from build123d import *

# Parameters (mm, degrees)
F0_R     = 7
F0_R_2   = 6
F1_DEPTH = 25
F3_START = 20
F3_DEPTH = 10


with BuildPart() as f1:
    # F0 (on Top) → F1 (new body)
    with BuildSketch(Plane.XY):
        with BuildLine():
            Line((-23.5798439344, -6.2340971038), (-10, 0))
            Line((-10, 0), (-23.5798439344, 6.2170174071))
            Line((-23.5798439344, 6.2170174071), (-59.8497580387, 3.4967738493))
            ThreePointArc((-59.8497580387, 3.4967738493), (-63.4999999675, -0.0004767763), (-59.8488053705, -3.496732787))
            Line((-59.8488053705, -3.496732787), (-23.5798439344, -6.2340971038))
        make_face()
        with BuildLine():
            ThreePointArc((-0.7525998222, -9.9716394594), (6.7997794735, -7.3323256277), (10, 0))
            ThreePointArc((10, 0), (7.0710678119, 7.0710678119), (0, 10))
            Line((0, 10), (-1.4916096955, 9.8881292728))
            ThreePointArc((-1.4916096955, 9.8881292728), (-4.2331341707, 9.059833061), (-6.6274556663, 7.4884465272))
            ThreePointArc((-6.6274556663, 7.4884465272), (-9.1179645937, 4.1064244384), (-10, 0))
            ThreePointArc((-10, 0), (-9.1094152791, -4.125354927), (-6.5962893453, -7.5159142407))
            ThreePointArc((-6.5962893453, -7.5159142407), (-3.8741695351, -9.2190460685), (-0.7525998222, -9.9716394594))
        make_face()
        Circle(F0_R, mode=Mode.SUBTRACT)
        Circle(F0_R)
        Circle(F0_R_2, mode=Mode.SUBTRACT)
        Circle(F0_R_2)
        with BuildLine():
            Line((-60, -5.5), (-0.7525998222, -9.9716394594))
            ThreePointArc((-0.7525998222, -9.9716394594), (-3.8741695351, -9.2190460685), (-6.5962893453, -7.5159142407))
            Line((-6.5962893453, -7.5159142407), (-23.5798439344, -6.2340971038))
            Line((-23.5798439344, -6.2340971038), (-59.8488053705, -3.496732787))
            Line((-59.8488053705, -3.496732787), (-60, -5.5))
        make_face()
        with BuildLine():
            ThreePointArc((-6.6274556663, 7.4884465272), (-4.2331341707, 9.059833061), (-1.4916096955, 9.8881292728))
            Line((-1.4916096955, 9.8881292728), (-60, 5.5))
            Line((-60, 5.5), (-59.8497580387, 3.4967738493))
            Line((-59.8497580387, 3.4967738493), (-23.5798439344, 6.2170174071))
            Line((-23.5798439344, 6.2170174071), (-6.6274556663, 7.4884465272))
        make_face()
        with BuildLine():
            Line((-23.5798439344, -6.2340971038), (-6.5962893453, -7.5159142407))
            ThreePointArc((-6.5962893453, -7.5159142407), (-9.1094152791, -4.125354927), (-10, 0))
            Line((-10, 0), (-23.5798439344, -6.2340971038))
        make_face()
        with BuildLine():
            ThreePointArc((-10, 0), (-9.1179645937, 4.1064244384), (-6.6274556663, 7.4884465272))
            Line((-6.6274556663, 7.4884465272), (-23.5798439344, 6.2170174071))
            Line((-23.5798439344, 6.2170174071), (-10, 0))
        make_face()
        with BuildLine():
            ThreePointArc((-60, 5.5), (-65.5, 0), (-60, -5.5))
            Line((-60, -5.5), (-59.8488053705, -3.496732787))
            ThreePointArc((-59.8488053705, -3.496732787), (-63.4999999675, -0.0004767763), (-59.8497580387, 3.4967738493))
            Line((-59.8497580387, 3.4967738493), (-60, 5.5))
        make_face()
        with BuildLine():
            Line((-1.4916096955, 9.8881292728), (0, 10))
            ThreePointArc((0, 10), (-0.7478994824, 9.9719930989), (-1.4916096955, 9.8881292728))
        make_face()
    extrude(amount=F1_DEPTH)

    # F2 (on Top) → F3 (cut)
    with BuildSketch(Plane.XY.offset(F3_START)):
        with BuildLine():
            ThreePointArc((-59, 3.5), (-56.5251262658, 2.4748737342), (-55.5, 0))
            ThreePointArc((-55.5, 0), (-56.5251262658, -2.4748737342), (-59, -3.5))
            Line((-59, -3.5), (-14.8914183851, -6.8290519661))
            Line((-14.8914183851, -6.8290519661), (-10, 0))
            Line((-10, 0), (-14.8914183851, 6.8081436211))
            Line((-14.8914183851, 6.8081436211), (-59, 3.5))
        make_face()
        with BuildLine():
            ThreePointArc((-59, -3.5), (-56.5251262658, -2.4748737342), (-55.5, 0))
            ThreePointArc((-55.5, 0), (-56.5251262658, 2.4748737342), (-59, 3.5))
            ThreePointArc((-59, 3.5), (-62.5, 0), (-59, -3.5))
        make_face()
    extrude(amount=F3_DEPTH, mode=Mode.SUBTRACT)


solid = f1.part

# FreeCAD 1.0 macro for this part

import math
import FreeCAD as App
import Part
import Sketcher
from FreeCAD import Vector
Q = App.Units.Quantity

doc = App.newDocument("Part")
params = doc.addObject("Spreadsheet::Sheet", "Params")
for row, (alias, value) in enumerate([
    ("sketch1_radius", "10 mm"),
    ("sketch1_radius2", "5.5 mm"),
    ("pad1_length", "25 mm"),
    ("sketch2_radius", "3.5 mm"),
    ("pocket1_length", "10 mm"),
], start=1):
    params.set(f"A{row}", alias)
    params.set(f"B{row}", "=" + value)
    params.setAlias(f"B{row}", alias)

body = doc.addObject("PartDesign::Body", "Body")

# Sketch on XY plane
sketch1 = body.newObject("Sketcher::SketchObject", "Sketch")
sketch1.AttachmentSupport = (doc.getObject("XY_Plane"), [""])
sketch1.MapMode = "FlatFace"
sketch1.addGeometry([
    Part.LineSegment(Vector(-1.5, 9.9, 0), Vector(-60, 5.5, 0)),  # 0
    Part.ArcOfCircle(Part.Circle(Vector(-60, 0, 0), Vector(0, 0, 1), 5.5), math.radians(90), math.radians(270)),  # 1
    Part.LineSegment(Vector(-60, -5.5, 0), Vector(-0.8, -10, 0)),  # 2
    Part.ArcOfCircle(Part.Circle(Vector(0, 0, 0), Vector(0, 0, 1), 10), math.radians(-94), math.radians(0)),  # 3
    Part.ArcOfCircle(Part.Circle(Vector(0, 0, 0), Vector(0, 0, 1), 10), math.radians(0), math.radians(90)),  # 4
    Part.ArcOfCircle(Part.Circle(Vector(0, 0, 0), Vector(0, 0, 1), 10), math.radians(90), math.radians(98.58)),  # 5
], False)
sketch1.addConstraint([
    Sketcher.Constraint("Coincident", 0, 2, 1, 1),
    Sketcher.Constraint("Coincident", 1, 2, 2, 1),
    Sketcher.Constraint("Tangent", 2, 2, 3, 1),
    Sketcher.Constraint("Tangent", 3, 2, 4, 1),
    Sketcher.Constraint("Tangent", 4, 2, 5, 1),
    Sketcher.Constraint("Coincident", 5, 2, 0, 1),
    Sketcher.Constraint("Coincident", 3, 3, -1, 1),
    Sketcher.Constraint("Coincident", 5, 3, -1, 1),
    Sketcher.Constraint("Symmetric", 0, 2, 1, 2, -1),
    Sketcher.Constraint("PointOnObject", 3, 2, -1),
    Sketcher.Constraint("PointOnObject", 4, 2, -2),
    Sketcher.Constraint("Vertical", 1, 3, 0, 2),
    Sketcher.Constraint("Radius", 3, Q("10 mm")),
    Sketcher.Constraint("Radius", 1, Q("5.5 mm")),
    Sketcher.Constraint("DistanceX", 1, 3, -1, 1, Q("60 mm")),
    Sketcher.Constraint("DistanceX", 5, 2, -1, 1, Q("1.49161 mm")),
])
sketch1.setExpression("Constraints[12]", "Params.sketch1_radius")
sketch1.setExpression("Constraints[13]", "Params.sketch1_radius2")
pad1 = body.newObject("PartDesign::Pad", "Pad")
pad1.Profile = sketch1
pad1.setExpression("Length", "Params.pad1_length")

# Sketch on XY plane
sketch2 = body.newObject("Sketcher::SketchObject", "Sketch001")
sketch2.AttachmentSupport = (doc.getObject("XY_Plane"), [""])
sketch2.MapMode = "FlatFace"
sketch2.AttachmentOffset = App.Placement(Vector(0, 0, 20), App.Rotation())
sketch2.addGeometry([
    Part.LineSegment(Vector(-59, -3.5, 0), Vector(-14.9, -6.8, 0)),  # 0
    Part.LineSegment(Vector(-14.9, -6.8, 0), Vector(-10, 0, 0)),  # 1
    Part.LineSegment(Vector(-10, 0, 0), Vector(-14.9, 6.8, 0)),  # 2
    Part.LineSegment(Vector(-14.9, 6.8, 0), Vector(-59, 3.5, 0)),  # 3
    Part.ArcOfCircle(Part.Circle(Vector(-59, 0, 0), Vector(0, 0, 1), 3.5), math.radians(90), math.radians(270)),  # 4
], False)
sketch2.addConstraint([
    Sketcher.Constraint("Coincident", 0, 2, 1, 1),
    Sketcher.Constraint("Coincident", 1, 2, 2, 1),
    Sketcher.Constraint("Coincident", 2, 2, 3, 1),
    Sketcher.Constraint("Coincident", 3, 2, 4, 1),
    Sketcher.Constraint("Coincident", 4, 2, 0, 1),
    Sketcher.Constraint("Symmetric", 3, 2, 4, 2, -1),
    Sketcher.Constraint("PointOnObject", 1, 2, -1),
    Sketcher.Constraint("Vertical", 0, 2, 2, 2),
    Sketcher.Constraint("Vertical", 4, 3, 3, 2),
    Sketcher.Constraint("Radius", 4, Q("3.5 mm")),
    Sketcher.Constraint("DistanceX", 4, 3, -1, 1, Q("59 mm")),
    Sketcher.Constraint("DistanceX", 1, 2, -1, 1, Q("10 mm")),
    Sketcher.Constraint("Distance", 0, Q("44.234032 mm")),
    Sketcher.Constraint("DistanceX", 0, 2, -1, 1, Q("14.891418 mm")),
    Sketcher.Constraint("Distance", 2, Q("8.383126 mm")),
])
sketch2.setExpression("Constraints[9]", "Params.sketch2_radius")
pocket1 = body.newObject("PartDesign::Pocket", "Pocket")
pocket1.Profile = sketch2
pocket1.setExpression("Length", "Params.pocket1_length")
pocket1.Reversed = True

doc.recompute()
